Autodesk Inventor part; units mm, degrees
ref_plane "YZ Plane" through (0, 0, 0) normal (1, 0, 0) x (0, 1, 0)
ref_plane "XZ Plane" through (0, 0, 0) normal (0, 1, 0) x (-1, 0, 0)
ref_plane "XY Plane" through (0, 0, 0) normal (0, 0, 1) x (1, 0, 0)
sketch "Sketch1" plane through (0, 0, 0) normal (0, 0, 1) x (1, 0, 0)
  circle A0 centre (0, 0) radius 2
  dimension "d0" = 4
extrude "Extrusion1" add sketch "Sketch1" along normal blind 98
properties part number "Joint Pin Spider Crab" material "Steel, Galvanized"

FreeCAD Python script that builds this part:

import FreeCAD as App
import Part
import Sketcher

doc = App.newDocument("Part")
params = doc.addObject("Spreadsheet::Sheet", "Params")
for row, (alias, value) in enumerate([
    ("sketch1_diameter", "4 mm"),
    ("pad1_length", "98 mm"),
], start=1):
    params.set(f"A{row}", alias)
    params.set(f"B{row}", "=" + value)
    params.setAlias(f"B{row}", alias)

body = doc.addObject("PartDesign::Body", "Body")

# Sketch on XY plane
sketch1 = doc.addObject("Sketcher::SketchObject", "Sketch")
body.addObject(sketch1)
sketch1.AttachmentSupport = (doc.XY_Plane, [""])
sketch1.MapMode = "FlatFace"
sketch1.addGeometry(Part.Circle(App.Vector(0, 0, 0), App.Vector(0, 0, 1), 2), False)
sketch1.addConstraint(Sketcher.Constraint("Coincident", 0, 3, -1, 1))
sketch1.addConstraint(Sketcher.Constraint("Diameter", 0, 4.0))
sketch1.setExpression("Constraints[1]", "Params.sketch1_diameter")
pad1 = doc.addObject("PartDesign::Pad", "Pad")
body.addObject(pad1)
pad1.Profile = sketch1
pad1.setExpression("Length", "Params.pad1_length")

doc.recompute()
